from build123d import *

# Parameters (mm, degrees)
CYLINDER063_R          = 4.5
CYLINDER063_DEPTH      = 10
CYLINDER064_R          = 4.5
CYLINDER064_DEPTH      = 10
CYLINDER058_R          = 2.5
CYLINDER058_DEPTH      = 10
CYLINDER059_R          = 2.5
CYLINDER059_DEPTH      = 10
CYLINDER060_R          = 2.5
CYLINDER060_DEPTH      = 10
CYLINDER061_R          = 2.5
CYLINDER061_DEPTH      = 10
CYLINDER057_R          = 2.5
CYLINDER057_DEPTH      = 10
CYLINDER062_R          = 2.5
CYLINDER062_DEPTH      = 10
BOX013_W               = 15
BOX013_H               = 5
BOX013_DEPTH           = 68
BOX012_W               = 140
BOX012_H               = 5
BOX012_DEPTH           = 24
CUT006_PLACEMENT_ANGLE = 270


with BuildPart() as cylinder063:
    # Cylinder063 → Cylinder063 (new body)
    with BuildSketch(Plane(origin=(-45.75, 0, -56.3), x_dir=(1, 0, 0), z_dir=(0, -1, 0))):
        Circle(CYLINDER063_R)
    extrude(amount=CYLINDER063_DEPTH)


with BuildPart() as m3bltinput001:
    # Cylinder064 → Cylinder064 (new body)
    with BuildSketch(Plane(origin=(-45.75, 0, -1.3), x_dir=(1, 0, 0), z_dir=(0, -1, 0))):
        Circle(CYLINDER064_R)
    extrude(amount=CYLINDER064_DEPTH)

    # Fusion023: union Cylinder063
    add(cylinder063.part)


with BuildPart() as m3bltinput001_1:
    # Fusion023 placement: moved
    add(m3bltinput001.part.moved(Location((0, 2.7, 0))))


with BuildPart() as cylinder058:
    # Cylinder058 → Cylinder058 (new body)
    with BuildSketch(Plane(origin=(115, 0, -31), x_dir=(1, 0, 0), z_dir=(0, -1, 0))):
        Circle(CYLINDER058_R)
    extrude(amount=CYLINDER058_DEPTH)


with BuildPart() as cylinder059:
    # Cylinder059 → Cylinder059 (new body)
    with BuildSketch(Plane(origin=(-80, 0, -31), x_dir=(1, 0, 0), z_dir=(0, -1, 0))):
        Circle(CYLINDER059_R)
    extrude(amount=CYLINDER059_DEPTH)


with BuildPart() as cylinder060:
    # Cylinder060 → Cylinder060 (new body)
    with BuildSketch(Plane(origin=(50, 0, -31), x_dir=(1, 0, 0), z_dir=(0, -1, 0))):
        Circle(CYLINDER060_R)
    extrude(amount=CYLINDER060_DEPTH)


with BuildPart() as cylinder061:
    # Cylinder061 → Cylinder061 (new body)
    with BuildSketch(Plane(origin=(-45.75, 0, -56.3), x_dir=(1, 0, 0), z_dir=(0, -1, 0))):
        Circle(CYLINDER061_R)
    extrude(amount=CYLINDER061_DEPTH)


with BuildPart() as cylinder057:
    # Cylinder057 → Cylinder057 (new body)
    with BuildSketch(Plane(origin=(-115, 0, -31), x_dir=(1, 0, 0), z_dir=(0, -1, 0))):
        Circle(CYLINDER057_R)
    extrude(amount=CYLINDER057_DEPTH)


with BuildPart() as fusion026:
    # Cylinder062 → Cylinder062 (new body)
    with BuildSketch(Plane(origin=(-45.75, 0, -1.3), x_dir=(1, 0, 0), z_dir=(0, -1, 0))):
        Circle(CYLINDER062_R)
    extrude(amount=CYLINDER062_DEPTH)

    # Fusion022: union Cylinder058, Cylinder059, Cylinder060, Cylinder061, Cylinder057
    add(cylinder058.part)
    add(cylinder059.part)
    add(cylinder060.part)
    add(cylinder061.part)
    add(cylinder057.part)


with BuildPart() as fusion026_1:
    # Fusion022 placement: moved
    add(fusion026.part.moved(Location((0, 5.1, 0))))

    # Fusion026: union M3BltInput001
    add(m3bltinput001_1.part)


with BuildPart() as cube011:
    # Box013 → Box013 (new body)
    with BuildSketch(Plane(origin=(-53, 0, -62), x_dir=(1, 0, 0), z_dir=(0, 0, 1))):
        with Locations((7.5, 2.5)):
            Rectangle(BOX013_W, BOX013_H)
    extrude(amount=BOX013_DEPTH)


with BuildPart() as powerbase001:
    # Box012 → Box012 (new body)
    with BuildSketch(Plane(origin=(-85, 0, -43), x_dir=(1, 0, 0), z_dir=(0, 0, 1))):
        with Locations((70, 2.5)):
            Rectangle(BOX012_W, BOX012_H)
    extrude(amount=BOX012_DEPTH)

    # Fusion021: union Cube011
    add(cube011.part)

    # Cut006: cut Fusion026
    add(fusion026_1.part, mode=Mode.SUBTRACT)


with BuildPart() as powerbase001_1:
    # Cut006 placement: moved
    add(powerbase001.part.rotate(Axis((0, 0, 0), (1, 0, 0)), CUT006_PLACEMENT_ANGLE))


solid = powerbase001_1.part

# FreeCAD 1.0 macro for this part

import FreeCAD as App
import Part
import Sketcher
Q = App.Units.Quantity

doc = App.newDocument("Part")
body = doc.addObject("PartDesign::Body", "Body")

sketch1 = body.newObject("Sketcher::SketchObject", "Sketch")
sketch1.AttachmentSupport = (doc.getObject("XZ_Plane"), [""])
sketch1.MapMode = "FlatFace"
sketch1.addGeometry(Part.Circle(App.Vector(-45.75, -56.3, 0), App.Vector(0, 0, 1), 4.5), False)
sketch1.addConstraint([
    Sketcher.Constraint("Diameter", 0, Q("9 mm")),
    Sketcher.Constraint("DistanceY", 0, 3, -1, 1, Q("56.3 mm")),
    Sketcher.Constraint("DistanceX", 0, 3, -1, 1, Q("45.75 mm")),
])
pad1 = body.newObject("PartDesign::Pad", "Pad")
pad1.Profile = sketch1
pad1.Length = 10
body2 = doc.addObject("PartDesign::Body", "Body001")
body2.AllowCompound = True

sketch2 = body2.newObject("Sketcher::SketchObject", "Sketch001")
sketch2.AttachmentSupport = (doc.getObject("XZ_Plane001"), [""])
sketch2.MapMode = "FlatFace"
sketch2.addGeometry(Part.Circle(App.Vector(-45.75, -1.3, 0), App.Vector(0, 0, 1), 4.5), False)
sketch2.addConstraint([
    Sketcher.Constraint("Diameter", 0, Q("9 mm")),
    Sketcher.Constraint("DistanceY", 0, 3, -1, 1, Q("1.3 mm")),
    Sketcher.Constraint("DistanceX", 0, 3, -1, 1, Q("45.75 mm")),
])
pad2 = body2.newObject("PartDesign::Pad", "Pad001")
pad2.Profile = sketch2
pad2.Length = 10
doc.recompute()

boolean = body2.newObject("PartDesign::Boolean", "Boolean")
boolean.Type = "Fuse"
boolean.addObjects([body])
body3 = doc.addObject("PartDesign::Body", "Body002")
body3.AllowCompound = True
doc.recompute()

body2.Placement = App.Placement(App.Vector(0, 2.7, 0), App.Rotation(App.Vector(0, 0, 1), 0))
boolean2 = body3.newObject("PartDesign::Boolean", "Boolean001")
boolean2.Type = "Fuse"
boolean2.addObjects([body2])
body4 = doc.addObject("PartDesign::Body", "Body003")

sketch3 = body4.newObject("Sketcher::SketchObject", "Sketch002")
sketch3.AttachmentSupport = (doc.getObject("XZ_Plane003"), [""])
sketch3.MapMode = "FlatFace"
sketch3.addGeometry(Part.Circle(App.Vector(115, -31, 0), App.Vector(0, 0, 1), 2.5), False)
sketch3.addConstraint([
    Sketcher.Constraint("Diameter", 0, Q("5 mm")),
    Sketcher.Constraint("DistanceX", -1, 1, 0, 3, Q("115 mm")),
    Sketcher.Constraint("DistanceY", 0, 3, -1, 1, Q("31 mm")),
])
pad3 = body4.newObject("PartDesign::Pad", "Pad002")
pad3.Profile = sketch3
pad3.Length = 10
body5 = doc.addObject("PartDesign::Body", "Body004")

sketch4 = body5.newObject("Sketcher::SketchObject", "Sketch003")
sketch4.AttachmentSupport = (doc.getObject("XZ_Plane004"), [""])
sketch4.MapMode = "FlatFace"
sketch4.addGeometry(Part.Circle(App.Vector(-80, -31, 0), App.Vector(0, 0, 1), 2.5), False)
sketch4.addConstraint([
    Sketcher.Constraint("Diameter", 0, Q("5 mm")),
    Sketcher.Constraint("DistanceX", 0, 3, -1, 1, Q("80 mm")),
    Sketcher.Constraint("DistanceY", 0, 3, -1, 1, Q("31 mm")),
])
pad4 = body5.newObject("PartDesign::Pad", "Pad003")
pad4.Profile = sketch4
pad4.Length = 10
body6 = doc.addObject("PartDesign::Body", "Body005")

sketch5 = body6.newObject("Sketcher::SketchObject", "Sketch004")
sketch5.AttachmentSupport = (doc.getObject("XZ_Plane005"), [""])
sketch5.MapMode = "FlatFace"
sketch5.addGeometry(Part.Circle(App.Vector(50, -31, 0), App.Vector(0, 0, 1), 2.5), False)
sketch5.addConstraint([
    Sketcher.Constraint("Diameter", 0, Q("5 mm")),
    Sketcher.Constraint("DistanceX", -1, 1, 0, 3, Q("50 mm")),
    Sketcher.Constraint("DistanceY", 0, 3, -1, 1, Q("31 mm")),
])
pad5 = body6.newObject("PartDesign::Pad", "Pad004")
pad5.Profile = sketch5
pad5.Length = 10
body7 = doc.addObject("PartDesign::Body", "Body006")

sketch6 = body7.newObject("Sketcher::SketchObject", "Sketch005")
sketch6.AttachmentSupport = (doc.getObject("XZ_Plane006"), [""])
sketch6.MapMode = "FlatFace"
sketch6.addGeometry(Part.Circle(App.Vector(-45.75, -56.3, 0), App.Vector(0, 0, 1), 2.5), False)
sketch6.addConstraint([
    Sketcher.Constraint("Diameter", 0, Q("5 mm")),
    Sketcher.Constraint("DistanceY", 0, 3, -1, 1, Q("56.3 mm")),
    Sketcher.Constraint("DistanceX", 0, 3, -1, 1, Q("45.75 mm")),
])
pad6 = body7.newObject("PartDesign::Pad", "Pad005")
pad6.Profile = sketch6
pad6.Length = 10
body8 = doc.addObject("PartDesign::Body", "Body007")

sketch7 = body8.newObject("Sketcher::SketchObject", "Sketch006")
sketch7.AttachmentSupport = (doc.getObject("XZ_Plane007"), [""])
sketch7.MapMode = "FlatFace"
sketch7.addGeometry(Part.Circle(App.Vector(-115, -31, 0), App.Vector(0, 0, 1), 2.5), False)
sketch7.addConstraint([
    Sketcher.Constraint("Diameter", 0, Q("5 mm")),
    Sketcher.Constraint("DistanceX", 0, 3, -1, 1, Q("115 mm")),
    Sketcher.Constraint("DistanceY", 0, 3, -1, 1, Q("31 mm")),
])
pad7 = body8.newObject("PartDesign::Pad", "Pad006")
pad7.Profile = sketch7
pad7.Length = 10
body9 = doc.addObject("PartDesign::Body", "Body008")
body9.AllowCompound = True

sketch8 = body9.newObject("Sketcher::SketchObject", "Sketch007")
sketch8.AttachmentSupport = (doc.getObject("XZ_Plane008"), [""])
sketch8.MapMode = "FlatFace"
sketch8.addGeometry(Part.Circle(App.Vector(-45.75, -1.3, 0), App.Vector(0, 0, 1), 2.5), False)
sketch8.addConstraint([
    Sketcher.Constraint("Diameter", 0, Q("5 mm")),
    Sketcher.Constraint("DistanceY", 0, 3, -1, 1, Q("1.3 mm")),
    Sketcher.Constraint("DistanceX", 0, 3, -1, 1, Q("45.75 mm")),
])
pad8 = body9.newObject("PartDesign::Pad", "Pad007")
pad8.Profile = sketch8
pad8.Length = 10
doc.recompute()

boolean3 = body9.newObject("PartDesign::Boolean", "Boolean002")
boolean3.Type = "Fuse"
boolean3.addObjects([body4])
doc.recompute()

boolean4 = body9.newObject("PartDesign::Boolean", "Boolean003")
boolean4.Type = "Fuse"
boolean4.addObjects([body5])
doc.recompute()

boolean5 = body9.newObject("PartDesign::Boolean", "Boolean004")
boolean5.Type = "Fuse"
boolean5.addObjects([body6])
doc.recompute()

boolean6 = body9.newObject("PartDesign::Boolean", "Boolean005")
boolean6.Type = "Fuse"
boolean6.addObjects([body7])
doc.recompute()

boolean7 = body9.newObject("PartDesign::Boolean", "Boolean006")
boolean7.Type = "Fuse"
boolean7.addObjects([body8])
body10 = doc.addObject("PartDesign::Body", "Body009")
body10.AllowCompound = True
doc.recompute()

body9.Placement = App.Placement(App.Vector(0, 5.1, 0), App.Rotation(App.Vector(0, 0, 1), 0))
boolean8 = body10.newObject("PartDesign::Boolean", "Boolean007")
boolean8.Type = "Fuse"
boolean8.addObjects([body9])
doc.recompute()

boolean9 = body10.newObject("PartDesign::Boolean", "Boolean008")
boolean9.Type = "Fuse"
boolean9.addObjects([body3])
body11 = doc.addObject("PartDesign::Body", "Body010")

sketch9 = body11.newObject("Sketcher::SketchObject", "Sketch008")
sketch9.AttachmentSupport = (doc.getObject("XY_Plane010"), [""])
sketch9.MapMode = "FlatFace"
sketch9.AttachmentOffset = App.Placement(App.Vector(0, 0, -62), App.Rotation())
sketch9.addGeometry([
    Part.LineSegment(App.Vector(-53, 5, 0), App.Vector(-53, 0, 0)),
    Part.LineSegment(App.Vector(-53, 0, 0), App.Vector(-38, 0, 0)),
    Part.LineSegment(App.Vector(-38, 0, 0), App.Vector(-38, 5, 0)),
    Part.LineSegment(App.Vector(-38, 5, 0), App.Vector(-53, 5, 0)),
], False)
sketch9.addConstraint([
    Sketcher.Constraint("Coincident", 0, 2, 1, 1),
    Sketcher.Constraint("Coincident", 1, 2, 2, 1),
    Sketcher.Constraint("Coincident", 2, 2, 3, 1),
    Sketcher.Constraint("Coincident", 3, 2, 0, 1),
    Sketcher.Constraint("Vertical", 0),
    Sketcher.Constraint("Horizontal", 1),
    Sketcher.Constraint("Vertical", 2),
    Sketcher.Constraint("Horizontal", 3),
    Sketcher.Constraint("PointOnObject", 0, 2, -1),
    Sketcher.Constraint("DistanceX", 1, 1, 1, 2, Q("15 mm")),
    Sketcher.Constraint("DistanceY", 0, 2, 0, 1, Q("5 mm")),
    Sketcher.Constraint("DistanceX", 0, 2, -1, 1, Q("53 mm")),
])
pad9 = body11.newObject("PartDesign::Pad", "Pad008")
pad9.Profile = sketch9
pad9.Length = 68
body12 = doc.addObject("PartDesign::Body", "Body011")

sketch10 = body12.newObject("Sketcher::SketchObject", "Sketch009")
sketch10.AttachmentSupport = (doc.getObject("XY_Plane011"), [""])
sketch10.MapMode = "FlatFace"
sketch10.AttachmentOffset = App.Placement(App.Vector(0, 0, -43), App.Rotation())
sketch10.addGeometry([
    Part.LineSegment(App.Vector(-85, 5, 0), App.Vector(-85, 0, 0)),
    Part.LineSegment(App.Vector(-85, 0, 0), App.Vector(55, 0, 0)),
    Part.LineSegment(App.Vector(55, 0, 0), App.Vector(55, 5, 0)),
    Part.LineSegment(App.Vector(55, 5, 0), App.Vector(-85, 5, 0)),
], False)
sketch10.addConstraint([
    Sketcher.Constraint("Coincident", 0, 2, 1, 1),
    Sketcher.Constraint("Coincident", 1, 2, 2, 1),
    Sketcher.Constraint("Coincident", 2, 2, 3, 1),
    Sketcher.Constraint("Coincident", 3, 2, 0, 1),
    Sketcher.Constraint("Vertical", 0),
    Sketcher.Constraint("Horizontal", 1),
    Sketcher.Constraint("Vertical", 2),
    Sketcher.Constraint("Horizontal", 3),
    Sketcher.Constraint("PointOnObject", 0, 2, -1),
    Sketcher.Constraint("DistanceX", 1, 1, 1, 2, Q("140 mm")),
    Sketcher.Constraint("DistanceY", 0, 2, 0, 1, Q("5 mm")),
    Sketcher.Constraint("DistanceX", 0, 2, -1, 1, Q("85 mm")),
])
pad10 = body12.newObject("PartDesign::Pad", "Pad009")
pad10.Profile = sketch10
pad10.Length = 24
doc.recompute()

boolean10 = body12.newObject("PartDesign::Boolean", "Boolean009")
boolean10.Type = "Fuse"
boolean10.addObjects([body11])
doc.recompute()

boolean11 = body12.newObject("PartDesign::Boolean", "Boolean010")
boolean11.Type = "Cut"
boolean11.addObjects([body10])
body13 = doc.addObject("PartDesign::Body", "Body012")
doc.recompute()

body12.Placement = App.Placement(App.Vector(0, 0, 0), App.Rotation(App.Vector(1, 0, 0), 270))
boolean12 = body13.newObject("PartDesign::Boolean", "Boolean011")
boolean12.Type = "Fuse"
boolean12.addObjects([body12])

doc.recompute()
